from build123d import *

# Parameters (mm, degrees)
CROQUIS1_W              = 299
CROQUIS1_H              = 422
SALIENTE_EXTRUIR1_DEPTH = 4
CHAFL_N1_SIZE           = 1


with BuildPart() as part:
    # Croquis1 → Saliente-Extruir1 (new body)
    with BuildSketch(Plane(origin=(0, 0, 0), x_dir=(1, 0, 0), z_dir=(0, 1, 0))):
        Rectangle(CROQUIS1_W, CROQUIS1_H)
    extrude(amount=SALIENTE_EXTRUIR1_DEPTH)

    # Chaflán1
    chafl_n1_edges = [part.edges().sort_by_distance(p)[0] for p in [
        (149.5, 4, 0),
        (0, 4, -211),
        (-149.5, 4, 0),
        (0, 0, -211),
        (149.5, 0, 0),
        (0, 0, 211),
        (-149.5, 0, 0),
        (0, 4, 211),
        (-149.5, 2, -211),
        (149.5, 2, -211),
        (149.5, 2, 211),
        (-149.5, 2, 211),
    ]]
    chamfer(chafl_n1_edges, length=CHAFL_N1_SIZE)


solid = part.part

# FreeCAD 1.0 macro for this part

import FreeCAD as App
import Part
import Sketcher
from FreeCAD import Vector
Q = App.Units.Quantity


def add_polygon(sketch, points):
    """Adds a closed chain of lines whose ends are joined by coincident constraints."""
    first, n = sketch.GeometryCount, len(points)
    for a, b in zip(points, points[1:] + points[:1]):
        sketch.addGeometry(Part.LineSegment(App.Vector(*a, 0), App.Vector(*b, 0)), False)
    for i in range(n):
        sketch.addConstraint(Sketcher.Constraint("Coincident", first + i, 2, first + (i + 1) % n, 1))

doc = App.newDocument("Part")
params = doc.addObject("Spreadsheet::Sheet", "Params")
for row, (alias, value) in enumerate([
    ("sketch1_width", "299 mm"),
    ("sketch1_height", "422 mm"),
    ("pad1_length", "4 mm"),
    ("chamfer_size", "1 mm"),
], start=1):
    params.set(f"A{row}", alias)
    params.set(f"B{row}", "=" + value)
    params.setAlias(f"B{row}", alias)

body = doc.addObject("PartDesign::Body", "Body")

# Sketch on XZ plane
sketch1 = body.newObject("Sketcher::SketchObject", "Sketch")
sketch1.AttachmentSupport = (doc.getObject("XZ_Plane"), [""])
sketch1.MapMode = "FlatFace"
add_polygon(sketch1, [(-150, -211), (-150, 211), (150, 211), (150, -211)])  # lines 0-3
sketch1.addConstraint(Sketcher.Constraint("Vertical", 0))
sketch1.addConstraint(Sketcher.Constraint("Horizontal", 1))
sketch1.addConstraint(Sketcher.Constraint("Vertical", 2))
sketch1.addConstraint(Sketcher.Constraint("Horizontal", 3))
sketch1.addConstraint(Sketcher.Constraint("Symmetric", 0, 2, 2, 2, -1, 1))
sketch1.addConstraint(Sketcher.Constraint("DistanceX", 1, 1, 1, 2, Q("299 mm")))
sketch1.addConstraint(Sketcher.Constraint("DistanceY", 0, 1, 0, 2, Q("422 mm")))
sketch1.setExpression("Constraints[9]", "Params.sketch1_width")
sketch1.setExpression("Constraints[10]", "Params.sketch1_height")
pad1 = body.newObject("PartDesign::Pad", "Pad")
pad1.Profile = sketch1
pad1.setExpression("Length", "Params.pad1_length")
pad1.Reversed = True
doc.recompute()

chamfer = body.newObject("PartDesign::Chamfer", "Chamfer")
chamfer.Base = (pad1, ["Edge1"])
chamfer.UseAllEdges = True
chamfer.setExpression("Size", "Params.chamfer_size")

doc.recompute()
